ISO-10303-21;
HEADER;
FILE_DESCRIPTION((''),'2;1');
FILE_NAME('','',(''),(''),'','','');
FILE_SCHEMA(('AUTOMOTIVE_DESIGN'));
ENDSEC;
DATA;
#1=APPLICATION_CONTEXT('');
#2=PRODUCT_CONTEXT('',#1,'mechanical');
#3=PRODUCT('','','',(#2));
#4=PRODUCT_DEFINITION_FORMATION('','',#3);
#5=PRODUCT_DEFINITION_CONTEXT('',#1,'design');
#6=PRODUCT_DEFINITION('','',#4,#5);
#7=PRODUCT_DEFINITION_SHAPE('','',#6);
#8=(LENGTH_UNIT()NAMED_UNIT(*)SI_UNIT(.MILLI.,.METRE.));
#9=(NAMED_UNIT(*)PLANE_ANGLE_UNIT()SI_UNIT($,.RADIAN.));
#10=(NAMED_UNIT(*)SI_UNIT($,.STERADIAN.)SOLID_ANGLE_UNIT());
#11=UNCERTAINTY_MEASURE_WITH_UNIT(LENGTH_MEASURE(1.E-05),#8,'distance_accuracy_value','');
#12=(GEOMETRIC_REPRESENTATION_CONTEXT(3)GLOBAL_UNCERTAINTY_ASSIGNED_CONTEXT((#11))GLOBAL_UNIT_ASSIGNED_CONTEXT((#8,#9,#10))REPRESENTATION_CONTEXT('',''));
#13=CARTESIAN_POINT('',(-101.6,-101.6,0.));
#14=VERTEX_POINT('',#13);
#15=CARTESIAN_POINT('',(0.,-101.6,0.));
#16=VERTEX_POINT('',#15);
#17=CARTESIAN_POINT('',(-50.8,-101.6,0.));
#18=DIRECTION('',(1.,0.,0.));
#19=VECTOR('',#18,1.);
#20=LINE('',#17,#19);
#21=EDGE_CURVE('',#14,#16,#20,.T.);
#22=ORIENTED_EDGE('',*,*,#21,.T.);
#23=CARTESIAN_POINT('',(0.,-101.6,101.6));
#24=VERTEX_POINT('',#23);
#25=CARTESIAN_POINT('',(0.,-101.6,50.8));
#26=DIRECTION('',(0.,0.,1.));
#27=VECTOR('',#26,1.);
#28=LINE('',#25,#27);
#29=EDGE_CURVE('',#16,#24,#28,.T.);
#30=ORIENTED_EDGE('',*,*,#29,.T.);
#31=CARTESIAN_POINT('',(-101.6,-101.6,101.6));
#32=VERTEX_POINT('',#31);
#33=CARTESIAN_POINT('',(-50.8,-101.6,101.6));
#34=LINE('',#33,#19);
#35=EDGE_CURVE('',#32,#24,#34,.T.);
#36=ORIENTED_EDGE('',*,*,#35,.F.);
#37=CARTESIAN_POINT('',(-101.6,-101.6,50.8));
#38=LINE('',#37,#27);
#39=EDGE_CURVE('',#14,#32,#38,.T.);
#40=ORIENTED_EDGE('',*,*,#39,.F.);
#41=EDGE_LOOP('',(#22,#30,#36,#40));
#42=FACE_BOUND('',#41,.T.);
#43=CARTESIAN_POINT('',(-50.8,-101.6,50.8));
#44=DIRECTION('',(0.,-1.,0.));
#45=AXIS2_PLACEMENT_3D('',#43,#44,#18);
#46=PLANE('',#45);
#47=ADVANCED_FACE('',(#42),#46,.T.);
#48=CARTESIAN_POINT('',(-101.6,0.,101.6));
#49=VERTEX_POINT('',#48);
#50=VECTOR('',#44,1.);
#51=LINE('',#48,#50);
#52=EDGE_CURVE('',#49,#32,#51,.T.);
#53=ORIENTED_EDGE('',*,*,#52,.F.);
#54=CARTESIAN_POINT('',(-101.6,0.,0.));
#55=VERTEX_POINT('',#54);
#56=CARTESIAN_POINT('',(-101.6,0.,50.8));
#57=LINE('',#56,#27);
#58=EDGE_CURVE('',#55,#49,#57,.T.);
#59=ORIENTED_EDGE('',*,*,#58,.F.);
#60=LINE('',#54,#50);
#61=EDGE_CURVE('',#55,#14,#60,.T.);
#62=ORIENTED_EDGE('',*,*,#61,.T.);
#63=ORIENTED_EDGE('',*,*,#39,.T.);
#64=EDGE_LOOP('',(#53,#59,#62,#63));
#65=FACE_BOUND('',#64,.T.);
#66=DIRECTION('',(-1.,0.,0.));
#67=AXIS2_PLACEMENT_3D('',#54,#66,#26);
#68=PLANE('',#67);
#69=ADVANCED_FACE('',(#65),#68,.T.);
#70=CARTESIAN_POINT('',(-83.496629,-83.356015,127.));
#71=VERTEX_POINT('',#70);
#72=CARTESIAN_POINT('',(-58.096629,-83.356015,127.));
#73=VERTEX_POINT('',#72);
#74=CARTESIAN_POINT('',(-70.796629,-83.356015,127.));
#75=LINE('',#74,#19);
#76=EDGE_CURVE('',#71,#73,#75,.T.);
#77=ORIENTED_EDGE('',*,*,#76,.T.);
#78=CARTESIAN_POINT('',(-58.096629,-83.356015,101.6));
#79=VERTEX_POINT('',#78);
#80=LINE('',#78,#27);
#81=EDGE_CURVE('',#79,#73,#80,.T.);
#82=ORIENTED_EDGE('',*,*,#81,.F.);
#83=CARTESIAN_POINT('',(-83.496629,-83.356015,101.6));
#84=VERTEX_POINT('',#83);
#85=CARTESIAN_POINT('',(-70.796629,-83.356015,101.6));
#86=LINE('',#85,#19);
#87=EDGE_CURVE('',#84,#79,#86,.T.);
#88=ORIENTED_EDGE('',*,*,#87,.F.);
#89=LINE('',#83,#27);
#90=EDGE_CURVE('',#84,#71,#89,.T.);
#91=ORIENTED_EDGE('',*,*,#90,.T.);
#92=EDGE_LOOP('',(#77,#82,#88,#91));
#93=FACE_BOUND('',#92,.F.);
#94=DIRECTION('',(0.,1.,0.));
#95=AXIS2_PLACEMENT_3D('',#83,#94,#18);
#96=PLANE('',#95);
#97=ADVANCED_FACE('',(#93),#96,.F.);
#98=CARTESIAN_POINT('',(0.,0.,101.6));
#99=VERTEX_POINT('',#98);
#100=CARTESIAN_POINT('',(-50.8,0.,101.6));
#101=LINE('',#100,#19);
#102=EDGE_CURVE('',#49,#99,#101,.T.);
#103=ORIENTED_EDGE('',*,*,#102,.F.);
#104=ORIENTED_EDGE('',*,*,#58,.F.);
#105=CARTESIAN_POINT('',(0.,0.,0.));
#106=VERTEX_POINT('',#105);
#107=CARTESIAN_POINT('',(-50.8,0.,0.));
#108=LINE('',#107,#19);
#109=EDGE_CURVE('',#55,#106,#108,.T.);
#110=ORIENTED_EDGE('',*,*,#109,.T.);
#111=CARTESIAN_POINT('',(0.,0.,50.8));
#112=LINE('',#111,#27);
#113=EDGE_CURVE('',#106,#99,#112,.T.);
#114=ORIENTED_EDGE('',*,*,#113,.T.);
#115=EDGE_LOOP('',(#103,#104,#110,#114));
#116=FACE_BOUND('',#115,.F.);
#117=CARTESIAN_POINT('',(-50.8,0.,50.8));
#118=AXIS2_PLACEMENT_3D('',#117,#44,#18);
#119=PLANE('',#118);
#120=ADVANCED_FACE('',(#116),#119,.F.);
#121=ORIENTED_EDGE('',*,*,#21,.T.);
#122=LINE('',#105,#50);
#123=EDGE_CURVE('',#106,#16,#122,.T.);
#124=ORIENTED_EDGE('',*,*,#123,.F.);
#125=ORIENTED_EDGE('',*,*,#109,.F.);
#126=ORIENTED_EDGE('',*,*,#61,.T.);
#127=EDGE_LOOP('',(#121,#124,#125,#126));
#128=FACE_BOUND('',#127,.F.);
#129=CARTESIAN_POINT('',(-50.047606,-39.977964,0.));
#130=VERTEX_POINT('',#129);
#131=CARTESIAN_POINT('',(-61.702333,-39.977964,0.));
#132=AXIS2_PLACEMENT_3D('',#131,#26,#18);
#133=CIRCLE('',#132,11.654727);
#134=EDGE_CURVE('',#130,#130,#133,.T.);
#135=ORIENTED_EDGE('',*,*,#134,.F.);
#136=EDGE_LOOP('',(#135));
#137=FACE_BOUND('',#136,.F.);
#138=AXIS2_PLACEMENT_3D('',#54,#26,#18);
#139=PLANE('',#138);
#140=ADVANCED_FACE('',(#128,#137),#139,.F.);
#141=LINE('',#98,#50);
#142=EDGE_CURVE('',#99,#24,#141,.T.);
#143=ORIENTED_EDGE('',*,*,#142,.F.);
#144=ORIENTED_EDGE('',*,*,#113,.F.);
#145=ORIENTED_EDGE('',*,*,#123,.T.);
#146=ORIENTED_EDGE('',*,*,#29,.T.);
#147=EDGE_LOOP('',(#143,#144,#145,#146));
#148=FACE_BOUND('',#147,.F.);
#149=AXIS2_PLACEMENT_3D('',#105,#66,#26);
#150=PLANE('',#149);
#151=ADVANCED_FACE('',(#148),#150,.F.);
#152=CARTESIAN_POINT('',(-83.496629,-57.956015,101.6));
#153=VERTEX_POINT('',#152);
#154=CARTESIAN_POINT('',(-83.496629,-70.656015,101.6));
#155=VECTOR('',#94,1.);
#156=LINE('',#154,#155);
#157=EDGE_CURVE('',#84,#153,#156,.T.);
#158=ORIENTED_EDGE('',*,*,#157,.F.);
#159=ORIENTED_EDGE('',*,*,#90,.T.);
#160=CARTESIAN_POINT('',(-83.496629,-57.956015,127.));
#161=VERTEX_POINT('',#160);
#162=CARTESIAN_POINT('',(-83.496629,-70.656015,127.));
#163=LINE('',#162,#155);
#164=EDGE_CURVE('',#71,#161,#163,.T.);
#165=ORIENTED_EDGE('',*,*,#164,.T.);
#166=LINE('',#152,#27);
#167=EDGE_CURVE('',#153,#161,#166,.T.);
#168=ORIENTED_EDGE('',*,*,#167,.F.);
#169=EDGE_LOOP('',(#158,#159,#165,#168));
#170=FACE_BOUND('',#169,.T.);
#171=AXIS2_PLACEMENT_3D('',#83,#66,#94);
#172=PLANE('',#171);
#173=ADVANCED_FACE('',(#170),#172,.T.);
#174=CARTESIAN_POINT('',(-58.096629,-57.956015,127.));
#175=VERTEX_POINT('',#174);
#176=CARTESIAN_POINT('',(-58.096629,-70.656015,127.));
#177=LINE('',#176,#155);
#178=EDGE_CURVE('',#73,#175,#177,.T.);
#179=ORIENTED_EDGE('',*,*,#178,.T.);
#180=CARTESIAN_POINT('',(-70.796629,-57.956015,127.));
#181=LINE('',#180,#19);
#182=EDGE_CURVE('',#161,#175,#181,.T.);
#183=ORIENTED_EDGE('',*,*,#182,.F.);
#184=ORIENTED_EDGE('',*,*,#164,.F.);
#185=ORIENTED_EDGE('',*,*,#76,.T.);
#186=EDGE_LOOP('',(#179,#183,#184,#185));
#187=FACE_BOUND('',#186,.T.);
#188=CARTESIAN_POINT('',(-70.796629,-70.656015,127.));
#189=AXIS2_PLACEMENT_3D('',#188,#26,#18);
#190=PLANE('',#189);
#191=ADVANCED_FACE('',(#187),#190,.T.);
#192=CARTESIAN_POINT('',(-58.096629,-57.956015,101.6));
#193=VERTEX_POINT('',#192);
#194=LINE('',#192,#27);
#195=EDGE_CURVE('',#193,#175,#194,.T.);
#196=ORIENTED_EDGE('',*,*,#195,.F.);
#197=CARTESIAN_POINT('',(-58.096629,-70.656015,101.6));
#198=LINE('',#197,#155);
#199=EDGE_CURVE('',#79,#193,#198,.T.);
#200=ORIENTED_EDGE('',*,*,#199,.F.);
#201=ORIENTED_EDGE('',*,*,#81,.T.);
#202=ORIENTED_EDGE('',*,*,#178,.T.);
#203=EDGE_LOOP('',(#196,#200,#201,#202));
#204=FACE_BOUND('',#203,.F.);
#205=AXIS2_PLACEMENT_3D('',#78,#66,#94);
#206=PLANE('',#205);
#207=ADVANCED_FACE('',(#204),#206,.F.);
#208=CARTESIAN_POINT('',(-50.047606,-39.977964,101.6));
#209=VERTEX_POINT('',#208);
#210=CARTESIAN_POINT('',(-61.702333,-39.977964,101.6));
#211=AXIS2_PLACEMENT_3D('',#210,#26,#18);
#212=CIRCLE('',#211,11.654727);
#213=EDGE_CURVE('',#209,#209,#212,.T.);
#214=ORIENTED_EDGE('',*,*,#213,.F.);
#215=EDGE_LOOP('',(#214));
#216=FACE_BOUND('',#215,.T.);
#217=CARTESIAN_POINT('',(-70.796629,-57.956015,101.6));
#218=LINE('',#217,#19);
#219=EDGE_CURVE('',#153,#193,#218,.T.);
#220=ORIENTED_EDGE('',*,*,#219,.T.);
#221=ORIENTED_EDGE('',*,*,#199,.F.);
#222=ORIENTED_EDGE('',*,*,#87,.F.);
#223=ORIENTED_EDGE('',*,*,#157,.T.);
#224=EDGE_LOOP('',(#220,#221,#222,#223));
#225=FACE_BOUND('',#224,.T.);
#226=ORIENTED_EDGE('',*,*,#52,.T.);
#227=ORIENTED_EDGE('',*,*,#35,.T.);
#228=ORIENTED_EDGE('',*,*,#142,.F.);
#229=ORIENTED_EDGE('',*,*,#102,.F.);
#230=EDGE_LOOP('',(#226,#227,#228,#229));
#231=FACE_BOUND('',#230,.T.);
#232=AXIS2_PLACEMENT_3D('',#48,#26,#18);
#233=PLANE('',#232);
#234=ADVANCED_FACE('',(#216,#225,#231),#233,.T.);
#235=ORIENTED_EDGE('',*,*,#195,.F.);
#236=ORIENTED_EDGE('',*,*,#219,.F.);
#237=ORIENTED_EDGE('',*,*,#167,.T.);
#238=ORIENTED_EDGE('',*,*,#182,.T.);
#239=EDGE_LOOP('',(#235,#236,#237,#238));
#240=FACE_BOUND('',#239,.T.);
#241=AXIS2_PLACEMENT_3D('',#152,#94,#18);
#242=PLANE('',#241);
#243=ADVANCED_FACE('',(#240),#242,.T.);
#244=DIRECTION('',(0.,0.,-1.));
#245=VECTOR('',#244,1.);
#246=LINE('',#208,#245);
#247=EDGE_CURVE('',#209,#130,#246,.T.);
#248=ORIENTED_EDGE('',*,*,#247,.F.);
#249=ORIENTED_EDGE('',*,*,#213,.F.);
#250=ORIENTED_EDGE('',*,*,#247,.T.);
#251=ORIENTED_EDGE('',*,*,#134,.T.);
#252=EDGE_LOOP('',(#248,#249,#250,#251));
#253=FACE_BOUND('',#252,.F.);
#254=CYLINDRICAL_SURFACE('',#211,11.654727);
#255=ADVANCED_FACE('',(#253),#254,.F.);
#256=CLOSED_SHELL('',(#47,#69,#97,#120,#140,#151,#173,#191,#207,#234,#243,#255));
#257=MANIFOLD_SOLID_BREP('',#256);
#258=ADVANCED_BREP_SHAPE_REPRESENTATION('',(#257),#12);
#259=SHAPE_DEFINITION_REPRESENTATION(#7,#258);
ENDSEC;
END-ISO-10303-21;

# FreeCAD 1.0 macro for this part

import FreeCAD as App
import Part
import Sketcher

V = App.Vector
Q = App.Units.Quantity

doc = App.newDocument("Part")
body = doc.addObject("PartDesign::Body", "Body")

sketch1 = doc.addObject("Sketcher::SketchObject", "Sketch")
body.addObject(sketch1)
sketch1.AttachmentSupport = (doc.XZ_Plane, [""])
sketch1.MapMode = "FlatFace"
sketch1.addGeometry([
    Part.LineSegment(V(-102, 102, 0), V(-102, 0, 0)),
    Part.LineSegment(V(-102, 0, 0), V(0, 0, 0)),
    Part.LineSegment(V(0, 0, 0), V(0, 102, 0)),
    Part.LineSegment(V(0, 102, 0), V(-102, 102, 0)),
], False)
sketch1.addConstraint([
    Sketcher.Constraint("Coincident", 0, 2, 1, 1),
    Sketcher.Constraint("Coincident", 1, 2, 2, 1),
    Sketcher.Constraint("Coincident", 2, 2, 3, 1),
    Sketcher.Constraint("Coincident", 3, 2, 0, 1),
    Sketcher.Constraint("Vertical", 0),
    Sketcher.Constraint("Horizontal", 1),
    Sketcher.Constraint("Vertical", 2),
    Sketcher.Constraint("Horizontal", 3),
    Sketcher.Constraint("Coincident", 1, 2, -1, 1),
    Sketcher.Constraint("Equal", 3, 0),
    Sketcher.Constraint("DistanceX", 1, 1, 1, 2, Q("4 in")),
])
pad1 = doc.addObject("PartDesign::Pad", "Pad")
body.addObject(pad1)
pad1.Profile = sketch1
pad1.Length = Q("4 in")

sketch2 = doc.addObject("Sketcher::SketchObject", "Sketch001")
body.addObject(sketch2)
sketch2.AttachmentSupport = (doc.XY_Plane, [""])
sketch2.MapMode = "FlatFace"
sketch2.AttachmentOffset = App.Placement(V(0, 0, 4 * 25.4), App.Rotation())
sketch2.addGeometry(Part.Circle(V(-62, -40, 0), V(0, 0, 1), 12), False)
sketch2.addConstraint([
    Sketcher.Constraint("Diameter", 0, Q("23.309454 mm")),
    Sketcher.Constraint("DistanceX", 0, 3, -1, 1, Q("61.702333 mm")),
    Sketcher.Constraint("DistanceY", 0, 3, -1, 1, Q("39.977964 mm")),
])
pocket1 = doc.addObject("PartDesign::Pocket", "Pocket")
body.addObject(pocket1)
pocket1.Profile = sketch2
pocket1.Length = Q("4 in")

sketch3 = doc.addObject("Sketcher::SketchObject", "Sketch002")
body.addObject(sketch3)
sketch3.AttachmentSupport = (doc.XY_Plane, [""])
sketch3.MapMode = "FlatFace"
sketch3.AttachmentOffset = App.Placement(V(0, 0, 4 * 25.4), App.Rotation())
sketch3.addGeometry([
    Part.LineSegment(V(-83, -58, 0), V(-83, -83, 0)),
    Part.LineSegment(V(-83, -83, 0), V(-58, -83, 0)),
    Part.LineSegment(V(-58, -83, 0), V(-58, -58, 0)),
    Part.LineSegment(V(-58, -58, 0), V(-83, -58, 0)),
], False)
sketch3.addConstraint([
    Sketcher.Constraint("Coincident", 0, 2, 1, 1),
    Sketcher.Constraint("Coincident", 1, 2, 2, 1),
    Sketcher.Constraint("Coincident", 2, 2, 3, 1),
    Sketcher.Constraint("Coincident", 3, 2, 0, 1),
    Sketcher.Constraint("Vertical", 0),
    Sketcher.Constraint("Horizontal", 1),
    Sketcher.Constraint("Vertical", 2),
    Sketcher.Constraint("Horizontal", 3),
    Sketcher.Constraint("Equal", 3, 0),
    Sketcher.Constraint("DistanceX", 1, 1, 1, 2, Q("1 in")),
    Sketcher.Constraint("DistanceX", 0, 2, -1, 1, Q("83.496629 mm")),
    Sketcher.Constraint("DistanceY", 0, 2, -1, 1, Q("83.356015 mm")),
])
pad2 = doc.addObject("PartDesign::Pad", "Pad001")
body.addObject(pad2)
pad2.Profile = sketch3
pad2.Length = Q("1 in")

doc.recompute()
